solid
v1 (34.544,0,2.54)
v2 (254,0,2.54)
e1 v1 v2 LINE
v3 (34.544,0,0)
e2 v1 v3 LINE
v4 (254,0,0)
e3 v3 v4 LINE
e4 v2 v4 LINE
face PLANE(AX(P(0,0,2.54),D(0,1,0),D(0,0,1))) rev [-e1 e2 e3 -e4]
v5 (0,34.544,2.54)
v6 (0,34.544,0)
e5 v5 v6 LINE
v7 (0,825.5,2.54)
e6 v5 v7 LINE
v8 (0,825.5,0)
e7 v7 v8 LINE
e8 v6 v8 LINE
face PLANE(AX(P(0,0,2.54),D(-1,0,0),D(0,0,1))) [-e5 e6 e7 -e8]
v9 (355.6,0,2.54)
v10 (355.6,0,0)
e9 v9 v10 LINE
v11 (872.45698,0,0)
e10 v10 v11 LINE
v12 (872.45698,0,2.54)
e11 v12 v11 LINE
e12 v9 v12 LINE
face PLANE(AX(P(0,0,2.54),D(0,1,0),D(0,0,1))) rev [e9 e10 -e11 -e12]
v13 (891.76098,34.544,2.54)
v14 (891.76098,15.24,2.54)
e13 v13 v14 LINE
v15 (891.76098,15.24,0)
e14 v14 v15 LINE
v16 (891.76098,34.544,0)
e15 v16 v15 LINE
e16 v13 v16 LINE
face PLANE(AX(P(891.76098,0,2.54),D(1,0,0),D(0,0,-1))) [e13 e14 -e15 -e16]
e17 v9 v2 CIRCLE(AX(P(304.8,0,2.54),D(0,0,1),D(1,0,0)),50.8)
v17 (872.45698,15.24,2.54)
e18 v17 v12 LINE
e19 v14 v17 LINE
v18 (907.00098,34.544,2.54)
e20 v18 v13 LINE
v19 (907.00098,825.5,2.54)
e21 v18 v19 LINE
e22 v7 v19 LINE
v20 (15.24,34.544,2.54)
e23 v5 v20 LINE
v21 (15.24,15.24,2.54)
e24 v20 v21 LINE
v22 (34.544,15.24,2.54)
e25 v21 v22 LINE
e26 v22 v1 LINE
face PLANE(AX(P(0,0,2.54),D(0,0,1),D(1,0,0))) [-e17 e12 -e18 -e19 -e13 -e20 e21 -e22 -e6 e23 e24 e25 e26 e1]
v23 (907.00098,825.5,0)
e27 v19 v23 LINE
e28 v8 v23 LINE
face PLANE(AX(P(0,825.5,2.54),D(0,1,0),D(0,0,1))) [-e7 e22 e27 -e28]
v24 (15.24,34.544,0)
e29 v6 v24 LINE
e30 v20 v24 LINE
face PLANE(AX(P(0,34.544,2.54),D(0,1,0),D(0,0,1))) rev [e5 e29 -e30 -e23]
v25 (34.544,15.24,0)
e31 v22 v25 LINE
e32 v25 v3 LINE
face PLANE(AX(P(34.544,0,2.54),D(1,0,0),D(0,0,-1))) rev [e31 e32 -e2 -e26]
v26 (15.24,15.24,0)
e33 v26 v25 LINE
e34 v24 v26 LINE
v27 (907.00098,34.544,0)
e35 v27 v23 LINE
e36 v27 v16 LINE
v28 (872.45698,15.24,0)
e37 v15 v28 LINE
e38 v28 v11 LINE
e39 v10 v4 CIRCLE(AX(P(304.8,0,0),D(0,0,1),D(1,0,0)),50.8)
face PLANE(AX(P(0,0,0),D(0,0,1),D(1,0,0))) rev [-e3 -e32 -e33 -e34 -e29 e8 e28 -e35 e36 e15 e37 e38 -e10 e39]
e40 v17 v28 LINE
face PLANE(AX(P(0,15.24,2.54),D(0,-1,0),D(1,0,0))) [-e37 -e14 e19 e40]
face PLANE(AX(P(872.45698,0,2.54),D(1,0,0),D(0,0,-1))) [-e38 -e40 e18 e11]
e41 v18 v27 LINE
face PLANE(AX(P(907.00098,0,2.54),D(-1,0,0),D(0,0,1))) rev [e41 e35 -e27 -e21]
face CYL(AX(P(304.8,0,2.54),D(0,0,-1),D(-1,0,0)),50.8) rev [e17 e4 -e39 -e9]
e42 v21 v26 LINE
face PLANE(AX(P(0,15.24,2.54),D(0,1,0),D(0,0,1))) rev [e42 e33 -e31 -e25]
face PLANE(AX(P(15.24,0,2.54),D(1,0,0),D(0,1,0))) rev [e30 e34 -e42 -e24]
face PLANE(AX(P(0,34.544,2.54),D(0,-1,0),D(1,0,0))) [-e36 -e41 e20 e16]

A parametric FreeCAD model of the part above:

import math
import FreeCAD as App
import Part
import Sketcher
from FreeCAD import Vector
Q = App.Units.Quantity

doc = App.newDocument("Part")
params = doc.addObject("Spreadsheet::Sheet", "Params")
for row, (alias, value) in enumerate([
    ("sketch1_radius", "2 in"),
    ("sketch1_width", "0.6 in"),
    ("sketch1_width2", "0.76 in"),
    ("sketch1_height", "31.14 in"),
    ("pad1_length", "0.1 in"),
], start=1):
    params.set(f"A{row}", alias)
    params.set(f"B{row}", "=" + value)
    params.setAlias(f"B{row}", alias)

body = doc.addObject("PartDesign::Body", "Body")

# Sketch on XY plane
sketch1 = body.newObject("Sketcher::SketchObject", "Sketch")
sketch1.AttachmentSupport = (doc.getObject("XY_Plane"), [""])
sketch1.MapMode = "FlatFace"
sketch1.addGeometry([
    Part.LineSegment(Vector(0, 826, 0), Vector(0, 35, 0)),  # 0
    Part.LineSegment(Vector(0, 35, 0), Vector(15, 35, 0)),  # 1
    Part.LineSegment(Vector(15, 35, 0), Vector(15, 15, 0)),  # 2
    Part.LineSegment(Vector(15, 15, 0), Vector(35, 15, 0)),  # 3
    Part.LineSegment(Vector(35, 15, 0), Vector(35, 0, 0)),  # 4
    Part.LineSegment(Vector(35, 0, 0), Vector(254, 0, 0)),  # 5
    Part.ArcOfCircle(Part.Circle(Vector(305, 0, 0), Vector(0, 0, 1), 51), math.radians(0), math.radians(180)),  # 6
    Part.LineSegment(Vector(356, 0, 0), Vector(872, 0, 0)),  # 7
    Part.LineSegment(Vector(872, 0, 0), Vector(872, 15, 0)),  # 8
    Part.LineSegment(Vector(872, 15, 0), Vector(892, 15, 0)),  # 9
    Part.LineSegment(Vector(892, 15, 0), Vector(892, 35, 0)),  # 10
    Part.LineSegment(Vector(892, 35, 0), Vector(907, 35, 0)),  # 11
    Part.LineSegment(Vector(907, 35, 0), Vector(907, 826, 0)),  # 12
    Part.LineSegment(Vector(907, 826, 0), Vector(0, 826, 0)),  # 13
], False)
sketch1.addConstraint([
    Sketcher.Constraint("Coincident", 0, 2, 1, 1),
    Sketcher.Constraint("Coincident", 1, 2, 2, 1),
    Sketcher.Constraint("Coincident", 2, 2, 3, 1),
    Sketcher.Constraint("Coincident", 3, 2, 4, 1),
    Sketcher.Constraint("Coincident", 4, 2, 5, 1),
    Sketcher.Constraint("Coincident", 5, 2, 6, 2),
    Sketcher.Constraint("Coincident", 6, 1, 7, 1),
    Sketcher.Constraint("Coincident", 7, 2, 8, 1),
    Sketcher.Constraint("Coincident", 8, 2, 9, 1),
    Sketcher.Constraint("Coincident", 9, 2, 10, 1),
    Sketcher.Constraint("Coincident", 10, 2, 11, 1),
    Sketcher.Constraint("Coincident", 11, 2, 12, 1),
    Sketcher.Constraint("Coincident", 12, 2, 13, 1),
    Sketcher.Constraint("Coincident", 13, 2, 0, 1),
    Sketcher.Constraint("Vertical", 0),
    Sketcher.Constraint("Horizontal", 1),
    Sketcher.Constraint("Vertical", 2),
    Sketcher.Constraint("Horizontal", 3),
    Sketcher.Constraint("Vertical", 4),
    Sketcher.Constraint("Horizontal", 5),
    Sketcher.Constraint("Horizontal", 7),
    Sketcher.Constraint("Vertical", 8),
    Sketcher.Constraint("Horizontal", 9),
    Sketcher.Constraint("Vertical", 10),
    Sketcher.Constraint("Horizontal", 11),
    Sketcher.Constraint("Vertical", 12),
    Sketcher.Constraint("Horizontal", 13),
    Sketcher.Constraint("PointOnObject", 6, 3, -1),
    Sketcher.Constraint("PointOnObject", 0, 2, -2),
    Sketcher.Constraint("PointOnObject", 4, 2, -1),
    Sketcher.Constraint("PointOnObject", 6, 1, -1),
    Sketcher.Constraint("Horizontal", 3, 2, 8, 2),
    Sketcher.Constraint("Horizontal", 1, 2, 10, 2),
    Sketcher.Constraint("Equal", 3, 9),
    Sketcher.Constraint("Equal", 1, 11),
    Sketcher.Constraint("Equal", 9, 2),
    Sketcher.Constraint("Equal", 11, 4),
    Sketcher.Constraint("Radius", 6, Q("2 in")),
    Sketcher.Constraint("DistanceX", 1, 1, 1, 2, Q("0.6 in")),
    Sketcher.Constraint("DistanceX", -1, 1, 6, 3, Q("12 in")),
    Sketcher.Constraint("DistanceX", 3, 1, 3, 2, Q("0.76 in")),
    Sketcher.Constraint("DistanceY", 0, 2, 0, 1, Q("31.14 in")),
    Sketcher.Constraint("DistanceX", 7, 1, 7, 2, Q("20.3487 in")),
])
sketch1.setExpression("Constraints[37]", "Params.sketch1_radius")
sketch1.setExpression("Constraints[38]", "Params.sketch1_width")
sketch1.setExpression("Constraints[40]", "Params.sketch1_width2")
sketch1.setExpression("Constraints[41]", "Params.sketch1_height")
pad1 = body.newObject("PartDesign::Pad", "Pad")
pad1.Profile = sketch1
pad1.setExpression("Length", "Params.pad1_length")

doc.recompute()
